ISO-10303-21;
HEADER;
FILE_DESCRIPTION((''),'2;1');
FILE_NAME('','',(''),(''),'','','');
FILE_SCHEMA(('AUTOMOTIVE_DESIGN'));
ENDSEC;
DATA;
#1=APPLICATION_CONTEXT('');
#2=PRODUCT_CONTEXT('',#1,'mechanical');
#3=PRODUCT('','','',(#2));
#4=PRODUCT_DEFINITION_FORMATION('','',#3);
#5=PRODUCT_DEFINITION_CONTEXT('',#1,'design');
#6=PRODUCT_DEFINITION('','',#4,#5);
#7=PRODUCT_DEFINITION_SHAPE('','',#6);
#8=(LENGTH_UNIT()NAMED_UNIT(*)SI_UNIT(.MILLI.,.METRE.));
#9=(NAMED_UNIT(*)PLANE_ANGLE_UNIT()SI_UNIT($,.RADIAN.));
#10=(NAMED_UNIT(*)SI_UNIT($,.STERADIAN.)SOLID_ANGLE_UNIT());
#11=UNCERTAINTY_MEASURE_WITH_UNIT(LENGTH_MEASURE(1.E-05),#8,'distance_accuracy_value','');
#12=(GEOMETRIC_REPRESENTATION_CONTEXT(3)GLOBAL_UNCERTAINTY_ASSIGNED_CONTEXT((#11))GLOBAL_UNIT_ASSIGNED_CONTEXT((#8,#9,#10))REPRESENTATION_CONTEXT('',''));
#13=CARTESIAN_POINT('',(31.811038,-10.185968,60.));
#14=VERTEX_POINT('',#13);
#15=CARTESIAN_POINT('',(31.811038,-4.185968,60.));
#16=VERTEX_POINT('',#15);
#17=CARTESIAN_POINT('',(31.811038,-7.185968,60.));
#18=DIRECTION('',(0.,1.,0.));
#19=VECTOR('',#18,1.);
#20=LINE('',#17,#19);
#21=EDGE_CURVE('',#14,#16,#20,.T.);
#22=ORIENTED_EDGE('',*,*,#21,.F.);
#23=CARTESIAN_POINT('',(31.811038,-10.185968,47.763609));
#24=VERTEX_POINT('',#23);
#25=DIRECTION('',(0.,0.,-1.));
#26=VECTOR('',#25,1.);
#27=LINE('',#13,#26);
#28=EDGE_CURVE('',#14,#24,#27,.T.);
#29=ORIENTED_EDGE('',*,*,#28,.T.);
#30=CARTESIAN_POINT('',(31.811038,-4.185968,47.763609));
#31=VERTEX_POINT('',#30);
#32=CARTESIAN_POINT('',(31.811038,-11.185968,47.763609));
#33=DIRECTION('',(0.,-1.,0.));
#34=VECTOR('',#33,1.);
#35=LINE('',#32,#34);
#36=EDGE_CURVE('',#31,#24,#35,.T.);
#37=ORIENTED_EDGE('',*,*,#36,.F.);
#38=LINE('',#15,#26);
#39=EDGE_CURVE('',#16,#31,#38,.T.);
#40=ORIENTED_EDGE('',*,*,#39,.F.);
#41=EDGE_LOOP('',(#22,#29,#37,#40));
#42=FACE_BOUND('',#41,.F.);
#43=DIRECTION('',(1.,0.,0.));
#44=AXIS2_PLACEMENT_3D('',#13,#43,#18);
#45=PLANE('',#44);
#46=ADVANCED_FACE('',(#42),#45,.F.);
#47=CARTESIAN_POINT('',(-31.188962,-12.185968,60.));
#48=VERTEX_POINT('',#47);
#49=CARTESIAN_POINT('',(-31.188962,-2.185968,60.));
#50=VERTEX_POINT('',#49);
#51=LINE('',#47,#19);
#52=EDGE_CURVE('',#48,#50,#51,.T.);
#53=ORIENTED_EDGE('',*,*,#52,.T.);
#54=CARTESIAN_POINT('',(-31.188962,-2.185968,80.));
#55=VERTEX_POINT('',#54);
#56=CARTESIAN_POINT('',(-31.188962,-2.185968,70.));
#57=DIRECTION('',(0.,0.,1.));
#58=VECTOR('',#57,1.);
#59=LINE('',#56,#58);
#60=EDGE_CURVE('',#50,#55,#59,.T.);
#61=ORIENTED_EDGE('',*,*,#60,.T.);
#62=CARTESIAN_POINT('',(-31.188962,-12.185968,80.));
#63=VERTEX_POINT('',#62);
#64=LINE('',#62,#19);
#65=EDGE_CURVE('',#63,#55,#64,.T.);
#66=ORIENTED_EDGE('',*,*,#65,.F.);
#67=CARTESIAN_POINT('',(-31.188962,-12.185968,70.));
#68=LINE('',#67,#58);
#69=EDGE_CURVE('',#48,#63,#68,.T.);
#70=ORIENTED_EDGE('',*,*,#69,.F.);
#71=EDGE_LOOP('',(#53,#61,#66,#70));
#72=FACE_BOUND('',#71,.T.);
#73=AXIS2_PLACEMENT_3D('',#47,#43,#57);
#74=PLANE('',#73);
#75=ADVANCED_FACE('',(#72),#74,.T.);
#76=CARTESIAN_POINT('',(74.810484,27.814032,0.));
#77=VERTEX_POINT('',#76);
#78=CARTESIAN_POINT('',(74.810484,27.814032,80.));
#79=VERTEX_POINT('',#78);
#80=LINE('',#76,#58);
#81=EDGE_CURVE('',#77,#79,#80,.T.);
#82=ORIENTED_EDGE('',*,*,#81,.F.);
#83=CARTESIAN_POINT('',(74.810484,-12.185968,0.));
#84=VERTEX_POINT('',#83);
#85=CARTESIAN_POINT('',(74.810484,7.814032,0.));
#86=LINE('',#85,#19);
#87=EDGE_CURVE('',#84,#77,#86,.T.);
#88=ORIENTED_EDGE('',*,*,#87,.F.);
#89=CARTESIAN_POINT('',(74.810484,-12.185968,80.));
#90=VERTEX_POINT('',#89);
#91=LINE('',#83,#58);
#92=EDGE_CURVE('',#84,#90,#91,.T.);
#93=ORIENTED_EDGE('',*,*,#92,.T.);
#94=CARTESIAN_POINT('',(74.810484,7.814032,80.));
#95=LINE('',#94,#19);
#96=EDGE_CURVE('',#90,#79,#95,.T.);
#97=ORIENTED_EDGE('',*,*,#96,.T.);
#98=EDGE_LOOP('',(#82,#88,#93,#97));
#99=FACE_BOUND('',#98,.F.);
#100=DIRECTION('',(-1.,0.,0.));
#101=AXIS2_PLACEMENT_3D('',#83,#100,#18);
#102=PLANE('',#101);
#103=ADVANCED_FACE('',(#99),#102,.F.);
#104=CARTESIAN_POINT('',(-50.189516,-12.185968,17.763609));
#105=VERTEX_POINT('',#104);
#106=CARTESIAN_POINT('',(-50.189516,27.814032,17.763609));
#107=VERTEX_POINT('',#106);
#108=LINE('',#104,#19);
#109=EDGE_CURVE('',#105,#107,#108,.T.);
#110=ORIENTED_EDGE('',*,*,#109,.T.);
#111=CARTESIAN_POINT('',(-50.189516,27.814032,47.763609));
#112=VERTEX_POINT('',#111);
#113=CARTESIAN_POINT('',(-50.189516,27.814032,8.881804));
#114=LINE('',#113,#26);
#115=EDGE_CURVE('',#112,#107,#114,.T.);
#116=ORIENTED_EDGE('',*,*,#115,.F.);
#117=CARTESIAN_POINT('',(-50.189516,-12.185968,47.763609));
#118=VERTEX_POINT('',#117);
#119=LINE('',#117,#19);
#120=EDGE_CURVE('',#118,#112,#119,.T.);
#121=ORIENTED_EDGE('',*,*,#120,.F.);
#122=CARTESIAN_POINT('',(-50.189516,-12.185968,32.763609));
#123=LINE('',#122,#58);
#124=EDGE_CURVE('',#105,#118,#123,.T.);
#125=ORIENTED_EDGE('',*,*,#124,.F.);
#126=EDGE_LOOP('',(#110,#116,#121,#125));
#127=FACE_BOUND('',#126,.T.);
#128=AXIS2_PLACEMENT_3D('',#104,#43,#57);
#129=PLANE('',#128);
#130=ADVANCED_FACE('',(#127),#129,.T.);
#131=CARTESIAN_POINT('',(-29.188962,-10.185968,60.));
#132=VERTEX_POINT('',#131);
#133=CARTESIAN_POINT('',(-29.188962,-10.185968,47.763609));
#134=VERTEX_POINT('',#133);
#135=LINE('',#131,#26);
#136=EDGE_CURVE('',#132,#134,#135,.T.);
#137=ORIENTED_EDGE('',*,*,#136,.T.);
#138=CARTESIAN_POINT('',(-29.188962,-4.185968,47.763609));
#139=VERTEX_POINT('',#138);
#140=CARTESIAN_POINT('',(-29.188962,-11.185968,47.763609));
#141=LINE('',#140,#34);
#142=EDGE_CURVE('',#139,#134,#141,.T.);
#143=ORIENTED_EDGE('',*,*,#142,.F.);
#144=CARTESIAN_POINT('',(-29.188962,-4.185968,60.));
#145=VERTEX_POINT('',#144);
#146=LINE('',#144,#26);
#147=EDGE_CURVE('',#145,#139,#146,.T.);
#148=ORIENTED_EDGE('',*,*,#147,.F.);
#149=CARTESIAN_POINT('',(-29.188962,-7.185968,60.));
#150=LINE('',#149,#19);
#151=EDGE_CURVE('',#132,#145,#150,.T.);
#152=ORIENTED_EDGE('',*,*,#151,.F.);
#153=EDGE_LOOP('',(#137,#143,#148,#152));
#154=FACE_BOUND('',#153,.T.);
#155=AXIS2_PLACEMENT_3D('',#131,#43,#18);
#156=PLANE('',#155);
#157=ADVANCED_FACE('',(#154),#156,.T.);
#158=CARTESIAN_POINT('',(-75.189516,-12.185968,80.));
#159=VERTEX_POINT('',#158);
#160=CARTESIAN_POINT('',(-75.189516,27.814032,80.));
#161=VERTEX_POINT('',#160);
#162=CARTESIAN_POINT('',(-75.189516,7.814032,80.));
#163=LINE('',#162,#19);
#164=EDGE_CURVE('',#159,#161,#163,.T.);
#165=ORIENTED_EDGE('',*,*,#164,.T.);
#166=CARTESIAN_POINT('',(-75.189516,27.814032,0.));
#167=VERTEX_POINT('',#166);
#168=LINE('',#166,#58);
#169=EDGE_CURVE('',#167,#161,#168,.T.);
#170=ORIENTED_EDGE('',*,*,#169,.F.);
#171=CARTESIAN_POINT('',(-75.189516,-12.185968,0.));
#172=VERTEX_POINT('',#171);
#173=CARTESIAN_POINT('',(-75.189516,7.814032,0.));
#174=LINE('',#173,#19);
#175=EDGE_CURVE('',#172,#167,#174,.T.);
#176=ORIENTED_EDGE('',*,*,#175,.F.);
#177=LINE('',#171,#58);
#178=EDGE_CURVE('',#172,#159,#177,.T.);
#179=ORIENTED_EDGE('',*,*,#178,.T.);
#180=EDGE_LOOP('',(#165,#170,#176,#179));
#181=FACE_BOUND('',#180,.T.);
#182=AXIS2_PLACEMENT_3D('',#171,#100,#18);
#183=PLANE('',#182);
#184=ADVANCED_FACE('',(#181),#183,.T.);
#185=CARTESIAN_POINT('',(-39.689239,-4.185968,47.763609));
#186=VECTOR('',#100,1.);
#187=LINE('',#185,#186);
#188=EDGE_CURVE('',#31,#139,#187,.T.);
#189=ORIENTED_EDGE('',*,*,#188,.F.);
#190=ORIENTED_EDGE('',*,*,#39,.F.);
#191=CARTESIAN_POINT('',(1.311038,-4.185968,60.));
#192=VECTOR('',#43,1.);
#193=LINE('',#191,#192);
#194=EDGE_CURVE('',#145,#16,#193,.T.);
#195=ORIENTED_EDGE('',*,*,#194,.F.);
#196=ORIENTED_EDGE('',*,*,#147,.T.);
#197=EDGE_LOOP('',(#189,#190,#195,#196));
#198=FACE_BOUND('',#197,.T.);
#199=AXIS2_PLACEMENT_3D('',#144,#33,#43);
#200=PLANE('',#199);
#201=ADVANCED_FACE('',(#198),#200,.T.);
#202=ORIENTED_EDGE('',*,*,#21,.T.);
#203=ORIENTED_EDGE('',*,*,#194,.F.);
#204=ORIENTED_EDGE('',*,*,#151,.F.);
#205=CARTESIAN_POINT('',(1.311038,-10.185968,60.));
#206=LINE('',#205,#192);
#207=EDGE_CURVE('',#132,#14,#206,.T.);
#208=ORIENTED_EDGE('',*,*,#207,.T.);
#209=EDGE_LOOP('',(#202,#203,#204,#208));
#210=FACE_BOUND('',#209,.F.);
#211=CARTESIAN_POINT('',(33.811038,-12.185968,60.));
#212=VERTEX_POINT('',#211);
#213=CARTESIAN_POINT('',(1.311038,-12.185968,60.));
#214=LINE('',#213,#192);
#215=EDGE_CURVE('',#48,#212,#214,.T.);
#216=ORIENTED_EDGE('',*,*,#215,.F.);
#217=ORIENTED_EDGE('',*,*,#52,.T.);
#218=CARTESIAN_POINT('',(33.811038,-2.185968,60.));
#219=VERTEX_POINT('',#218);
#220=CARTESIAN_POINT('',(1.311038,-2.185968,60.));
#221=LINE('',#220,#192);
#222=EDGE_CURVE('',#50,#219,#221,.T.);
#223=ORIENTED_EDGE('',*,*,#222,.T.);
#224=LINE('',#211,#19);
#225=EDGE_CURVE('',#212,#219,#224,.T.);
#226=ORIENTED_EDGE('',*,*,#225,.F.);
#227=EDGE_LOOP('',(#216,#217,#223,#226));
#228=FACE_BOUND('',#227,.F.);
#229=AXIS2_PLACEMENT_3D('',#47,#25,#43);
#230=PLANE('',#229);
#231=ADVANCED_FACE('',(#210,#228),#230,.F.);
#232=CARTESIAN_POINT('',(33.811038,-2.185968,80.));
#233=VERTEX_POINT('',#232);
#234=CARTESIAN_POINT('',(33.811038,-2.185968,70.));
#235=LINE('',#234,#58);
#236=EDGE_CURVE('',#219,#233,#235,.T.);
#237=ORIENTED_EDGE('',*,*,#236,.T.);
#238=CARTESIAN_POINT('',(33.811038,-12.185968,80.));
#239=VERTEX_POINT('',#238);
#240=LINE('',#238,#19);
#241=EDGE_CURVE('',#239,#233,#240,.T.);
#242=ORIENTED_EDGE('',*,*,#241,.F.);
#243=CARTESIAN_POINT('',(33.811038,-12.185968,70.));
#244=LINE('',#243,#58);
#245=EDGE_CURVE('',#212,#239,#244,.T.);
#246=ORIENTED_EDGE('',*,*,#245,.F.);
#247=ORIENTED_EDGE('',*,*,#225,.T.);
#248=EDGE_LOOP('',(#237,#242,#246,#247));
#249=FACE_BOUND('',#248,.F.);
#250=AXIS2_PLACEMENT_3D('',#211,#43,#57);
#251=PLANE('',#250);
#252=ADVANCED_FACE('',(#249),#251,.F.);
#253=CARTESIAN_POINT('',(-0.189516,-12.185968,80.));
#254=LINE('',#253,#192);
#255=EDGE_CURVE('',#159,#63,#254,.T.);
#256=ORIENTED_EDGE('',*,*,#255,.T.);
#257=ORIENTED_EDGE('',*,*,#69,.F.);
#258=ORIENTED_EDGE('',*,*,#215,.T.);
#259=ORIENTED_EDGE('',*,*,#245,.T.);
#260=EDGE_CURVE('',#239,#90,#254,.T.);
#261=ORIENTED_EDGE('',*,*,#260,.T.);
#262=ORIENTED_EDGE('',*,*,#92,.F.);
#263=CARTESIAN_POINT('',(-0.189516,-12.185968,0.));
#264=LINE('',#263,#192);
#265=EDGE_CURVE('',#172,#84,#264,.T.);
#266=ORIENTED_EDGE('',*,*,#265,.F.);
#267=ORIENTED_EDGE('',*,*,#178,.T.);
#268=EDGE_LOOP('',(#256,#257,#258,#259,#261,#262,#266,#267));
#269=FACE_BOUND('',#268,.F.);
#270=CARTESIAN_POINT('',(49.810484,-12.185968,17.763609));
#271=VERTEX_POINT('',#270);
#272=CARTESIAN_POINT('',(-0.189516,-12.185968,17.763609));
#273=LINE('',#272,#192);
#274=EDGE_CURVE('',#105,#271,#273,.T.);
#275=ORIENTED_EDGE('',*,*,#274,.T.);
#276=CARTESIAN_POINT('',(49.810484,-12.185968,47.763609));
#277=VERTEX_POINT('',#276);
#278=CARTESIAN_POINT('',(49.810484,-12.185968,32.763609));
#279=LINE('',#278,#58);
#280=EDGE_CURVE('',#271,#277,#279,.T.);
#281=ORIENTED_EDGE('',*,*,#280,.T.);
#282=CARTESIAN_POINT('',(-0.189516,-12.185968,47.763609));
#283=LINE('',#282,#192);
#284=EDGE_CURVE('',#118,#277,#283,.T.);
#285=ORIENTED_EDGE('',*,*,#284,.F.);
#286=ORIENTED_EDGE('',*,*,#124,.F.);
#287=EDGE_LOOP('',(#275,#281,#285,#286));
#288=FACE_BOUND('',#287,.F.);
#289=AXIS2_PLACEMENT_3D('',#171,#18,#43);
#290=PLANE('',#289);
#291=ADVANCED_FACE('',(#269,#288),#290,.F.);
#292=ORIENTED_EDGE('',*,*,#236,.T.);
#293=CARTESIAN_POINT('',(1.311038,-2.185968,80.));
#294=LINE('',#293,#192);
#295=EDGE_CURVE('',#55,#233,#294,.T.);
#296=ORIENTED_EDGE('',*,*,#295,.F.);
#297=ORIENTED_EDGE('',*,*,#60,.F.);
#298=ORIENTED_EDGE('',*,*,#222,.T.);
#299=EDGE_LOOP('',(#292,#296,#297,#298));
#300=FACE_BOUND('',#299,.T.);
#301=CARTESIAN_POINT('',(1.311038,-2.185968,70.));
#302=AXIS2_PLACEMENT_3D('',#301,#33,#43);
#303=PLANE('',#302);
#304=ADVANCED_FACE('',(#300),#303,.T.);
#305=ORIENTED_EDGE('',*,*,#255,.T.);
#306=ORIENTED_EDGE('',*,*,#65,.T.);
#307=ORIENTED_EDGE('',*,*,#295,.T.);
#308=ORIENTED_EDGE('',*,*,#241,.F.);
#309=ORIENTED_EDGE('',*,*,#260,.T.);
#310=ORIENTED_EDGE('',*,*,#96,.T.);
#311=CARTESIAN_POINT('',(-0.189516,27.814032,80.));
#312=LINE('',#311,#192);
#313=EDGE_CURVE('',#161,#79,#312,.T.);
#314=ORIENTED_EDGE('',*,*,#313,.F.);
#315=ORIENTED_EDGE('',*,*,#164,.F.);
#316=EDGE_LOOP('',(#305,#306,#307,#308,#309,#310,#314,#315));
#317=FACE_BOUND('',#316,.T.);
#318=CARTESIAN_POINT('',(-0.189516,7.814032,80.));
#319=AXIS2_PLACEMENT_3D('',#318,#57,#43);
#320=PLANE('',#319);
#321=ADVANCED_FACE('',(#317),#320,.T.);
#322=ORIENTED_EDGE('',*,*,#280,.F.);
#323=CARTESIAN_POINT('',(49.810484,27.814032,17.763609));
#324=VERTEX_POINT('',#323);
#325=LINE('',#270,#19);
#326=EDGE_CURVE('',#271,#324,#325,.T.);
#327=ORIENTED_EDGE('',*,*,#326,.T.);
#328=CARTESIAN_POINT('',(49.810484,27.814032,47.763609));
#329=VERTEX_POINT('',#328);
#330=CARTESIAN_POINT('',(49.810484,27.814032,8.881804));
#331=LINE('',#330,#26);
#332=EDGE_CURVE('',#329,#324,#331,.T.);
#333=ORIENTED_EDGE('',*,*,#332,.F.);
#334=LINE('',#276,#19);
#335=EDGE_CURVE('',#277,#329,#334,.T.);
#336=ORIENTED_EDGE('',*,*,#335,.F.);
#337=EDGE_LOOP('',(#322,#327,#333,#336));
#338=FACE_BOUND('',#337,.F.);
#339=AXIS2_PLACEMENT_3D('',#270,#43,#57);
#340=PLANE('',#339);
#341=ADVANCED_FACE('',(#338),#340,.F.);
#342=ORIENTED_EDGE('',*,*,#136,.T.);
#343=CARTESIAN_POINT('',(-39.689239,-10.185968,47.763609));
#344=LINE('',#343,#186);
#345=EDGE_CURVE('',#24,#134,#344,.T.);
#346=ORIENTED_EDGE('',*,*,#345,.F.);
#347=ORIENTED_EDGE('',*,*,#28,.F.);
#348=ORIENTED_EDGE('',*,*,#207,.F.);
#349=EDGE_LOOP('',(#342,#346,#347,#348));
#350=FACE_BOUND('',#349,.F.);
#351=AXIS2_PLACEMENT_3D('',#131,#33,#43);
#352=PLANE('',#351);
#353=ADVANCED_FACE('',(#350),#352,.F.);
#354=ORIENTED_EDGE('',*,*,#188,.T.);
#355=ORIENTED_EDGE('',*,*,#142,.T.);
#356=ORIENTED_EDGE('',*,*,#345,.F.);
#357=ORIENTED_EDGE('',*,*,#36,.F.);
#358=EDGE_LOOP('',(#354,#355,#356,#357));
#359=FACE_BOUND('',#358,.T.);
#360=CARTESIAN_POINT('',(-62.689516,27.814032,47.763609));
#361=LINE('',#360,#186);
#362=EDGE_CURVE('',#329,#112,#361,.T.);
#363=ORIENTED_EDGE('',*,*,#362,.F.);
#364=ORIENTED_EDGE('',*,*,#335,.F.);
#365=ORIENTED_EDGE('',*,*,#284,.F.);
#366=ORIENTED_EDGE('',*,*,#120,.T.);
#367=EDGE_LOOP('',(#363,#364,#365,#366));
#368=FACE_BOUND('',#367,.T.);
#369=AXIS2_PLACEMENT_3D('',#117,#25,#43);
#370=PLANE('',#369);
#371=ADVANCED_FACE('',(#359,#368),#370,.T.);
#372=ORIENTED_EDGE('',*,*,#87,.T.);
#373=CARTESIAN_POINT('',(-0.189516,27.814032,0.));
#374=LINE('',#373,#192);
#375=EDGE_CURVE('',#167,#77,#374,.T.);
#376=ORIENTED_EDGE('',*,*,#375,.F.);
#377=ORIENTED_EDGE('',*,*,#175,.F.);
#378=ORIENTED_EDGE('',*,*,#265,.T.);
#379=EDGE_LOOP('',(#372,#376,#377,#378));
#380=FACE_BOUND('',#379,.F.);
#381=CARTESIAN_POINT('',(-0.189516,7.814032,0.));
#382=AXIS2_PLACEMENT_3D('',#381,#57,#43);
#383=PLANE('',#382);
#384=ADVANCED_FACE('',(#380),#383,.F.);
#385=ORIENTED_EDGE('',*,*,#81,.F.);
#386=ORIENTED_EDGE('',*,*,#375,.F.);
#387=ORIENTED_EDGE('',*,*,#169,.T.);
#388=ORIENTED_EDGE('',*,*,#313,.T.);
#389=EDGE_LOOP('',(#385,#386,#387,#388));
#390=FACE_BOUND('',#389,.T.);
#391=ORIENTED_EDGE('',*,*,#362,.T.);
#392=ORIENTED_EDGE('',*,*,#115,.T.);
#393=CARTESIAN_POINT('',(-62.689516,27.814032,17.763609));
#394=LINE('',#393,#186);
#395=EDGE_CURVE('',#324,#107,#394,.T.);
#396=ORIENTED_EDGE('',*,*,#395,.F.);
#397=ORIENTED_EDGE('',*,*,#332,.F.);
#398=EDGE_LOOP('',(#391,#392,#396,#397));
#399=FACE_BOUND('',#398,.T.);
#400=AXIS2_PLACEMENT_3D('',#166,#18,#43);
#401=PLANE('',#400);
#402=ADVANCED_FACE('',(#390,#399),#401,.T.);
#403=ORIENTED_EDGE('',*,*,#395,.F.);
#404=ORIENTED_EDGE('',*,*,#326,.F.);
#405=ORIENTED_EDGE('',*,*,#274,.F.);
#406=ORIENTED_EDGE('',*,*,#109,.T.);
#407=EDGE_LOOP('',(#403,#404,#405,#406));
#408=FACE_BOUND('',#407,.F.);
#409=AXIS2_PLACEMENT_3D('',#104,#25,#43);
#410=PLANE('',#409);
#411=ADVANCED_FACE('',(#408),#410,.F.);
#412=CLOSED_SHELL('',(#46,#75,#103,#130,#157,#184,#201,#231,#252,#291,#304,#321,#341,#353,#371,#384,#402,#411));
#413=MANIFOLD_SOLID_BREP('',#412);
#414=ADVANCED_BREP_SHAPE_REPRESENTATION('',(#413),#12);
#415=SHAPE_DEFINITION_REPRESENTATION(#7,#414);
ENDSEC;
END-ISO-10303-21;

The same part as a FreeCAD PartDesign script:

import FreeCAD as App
import Part
import Sketcher
Q = App.Units.Quantity

doc = App.newDocument("Part")
body = doc.addObject("PartDesign::Body", "Body")

sketch1 = doc.addObject("Sketcher::SketchObject", "Sketch")
body.addObject(sketch1)
sketch1.AttachmentSupport = (doc.XY_Plane, [""])
sketch1.MapMode = "FlatFace"
sketch1.addGeometry(Part.LineSegment(App.Vector(-75.189516, 27.814032, 0), App.Vector(-75.189516, -12.185968, 0)), False)
sketch1.addGeometry(Part.LineSegment(App.Vector(-75.189516, -12.185968, 0), App.Vector(74.810484, -12.185968, 0)), False)
sketch1.addGeometry(Part.LineSegment(App.Vector(74.810484, -12.185968, 0), App.Vector(74.810484, 27.814032, 0)), False)
sketch1.addGeometry(Part.LineSegment(App.Vector(74.810484, 27.814032, 0), App.Vector(-75.189516, 27.814032, 0)), False)
sketch1.addConstraint(Sketcher.Constraint("Coincident", 0, 2, 1, 1))
sketch1.addConstraint(Sketcher.Constraint("Coincident", 1, 2, 2, 1))
sketch1.addConstraint(Sketcher.Constraint("Coincident", 2, 2, 3, 1))
sketch1.addConstraint(Sketcher.Constraint("Coincident", 3, 2, 0, 1))
sketch1.addConstraint(Sketcher.Constraint("Vertical", 0))
sketch1.addConstraint(Sketcher.Constraint("Horizontal", 1))
sketch1.addConstraint(Sketcher.Constraint("Vertical", 2))
sketch1.addConstraint(Sketcher.Constraint("Horizontal", 3))
sketch1.addConstraint(Sketcher.Constraint("DistanceX", 1, 1, 1, 2, Q("150 mm")))
sketch1.addConstraint(Sketcher.Constraint("DistanceY", 0, 2, 0, 1, Q("40 mm")))
sketch1.addConstraint(Sketcher.Constraint("DistanceY", 0, 2, -1, 1, Q("12.185968 mm")))
sketch1.addConstraint(Sketcher.Constraint("DistanceX", 0, 2, -1, 1, Q("75.189516 mm")))
pad1 = doc.addObject("PartDesign::Pad", "Pad")
body.addObject(pad1)
pad1.Profile = sketch1
pad1.Length = 80

sketch2 = doc.addObject("Sketcher::SketchObject", "Sketch001")
body.addObject(sketch2)
sketch2.AttachmentSupport = (doc.XZ_Plane, [""])
sketch2.MapMode = "FlatFace"
sketch2.AttachmentOffset = App.Placement(App.Vector(0, 0, 12.185968), App.Rotation())
sketch2.addGeometry(Part.LineSegment(App.Vector(-31.188962, 80, 0), App.Vector(-31.188962, 60, 0)), False)
sketch2.addGeometry(Part.LineSegment(App.Vector(-31.188962, 60, 0), App.Vector(33.811038, 60, 0)), False)
sketch2.addGeometry(Part.LineSegment(App.Vector(33.811038, 60, 0), App.Vector(33.811038, 80, 0)), False)
sketch2.addGeometry(Part.LineSegment(App.Vector(33.811038, 80, 0), App.Vector(-31.188962, 80, 0)), False)
sketch2.addConstraint(Sketcher.Constraint("Coincident", 0, 2, 1, 1))
sketch2.addConstraint(Sketcher.Constraint("Coincident", 1, 2, 2, 1))
sketch2.addConstraint(Sketcher.Constraint("Coincident", 2, 2, 3, 1))
sketch2.addConstraint(Sketcher.Constraint("Coincident", 3, 2, 0, 1))
sketch2.addConstraint(Sketcher.Constraint("Vertical", 0))
sketch2.addConstraint(Sketcher.Constraint("Horizontal", 1))
sketch2.addConstraint(Sketcher.Constraint("Vertical", 2))
sketch2.addConstraint(Sketcher.Constraint("Horizontal", 3))
sketch2.addConstraint(Sketcher.Constraint("DistanceX", 1, 1, 1, 2, Q("65 mm")))
sketch2.addConstraint(Sketcher.Constraint("DistanceY", 0, 2, 0, 1, Q("20 mm")))
sketch2.addConstraint(Sketcher.Constraint("DistanceY", -1, 1, 0, 2, Q("60 mm")))
sketch2.addConstraint(Sketcher.Constraint("DistanceX", 0, 2, -1, 1, Q("31.188962 mm")))
pocket1 = doc.addObject("PartDesign::Pocket", "Pocket")
body.addObject(pocket1)
pocket1.Profile = sketch2
pocket1.Length = 10

sketch3 = doc.addObject("Sketcher::SketchObject", "Sketch002")
body.addObject(sketch3)
sketch3.AttachmentSupport = (doc.XZ_Plane, [""])
sketch3.MapMode = "FlatFace"
sketch3.AttachmentOffset = App.Placement(App.Vector(0, 0, 12.185968), App.Rotation())
sketch3.addGeometry(Part.LineSegment(App.Vector(-50.189516, 47.763609, 0), App.Vector(-50.189516, 17.763609, 0)), False)
sketch3.addGeometry(Part.LineSegment(App.Vector(-50.189516, 17.763609, 0), App.Vector(49.810484, 17.763609, 0)), False)
sketch3.addGeometry(Part.LineSegment(App.Vector(49.810484, 17.763609, 0), App.Vector(49.810484, 47.763609, 0)), False)
sketch3.addGeometry(Part.LineSegment(App.Vector(49.810484, 47.763609, 0), App.Vector(-50.189516, 47.763609, 0)), False)
sketch3.addConstraint(Sketcher.Constraint("Coincident", 0, 2, 1, 1))
sketch3.addConstraint(Sketcher.Constraint("Coincident", 1, 2, 2, 1))
sketch3.addConstraint(Sketcher.Constraint("Coincident", 2, 2, 3, 1))
sketch3.addConstraint(Sketcher.Constraint("Coincident", 3, 2, 0, 1))
sketch3.addConstraint(Sketcher.Constraint("Vertical", 0))
sketch3.addConstraint(Sketcher.Constraint("Horizontal", 1))
sketch3.addConstraint(Sketcher.Constraint("Vertical", 2))
sketch3.addConstraint(Sketcher.Constraint("Horizontal", 3))
sketch3.addConstraint(Sketcher.Constraint("DistanceX", 1, 1, 1, 2, Q("100 mm")))
sketch3.addConstraint(Sketcher.Constraint("DistanceY", 0, 2, 0, 1, Q("30 mm")))
sketch3.addConstraint(Sketcher.Constraint("DistanceY", -1, 1, 0, 2, Q("17.763609 mm")))
sketch3.addConstraint(Sketcher.Constraint("DistanceX", 0, 2, -1, 1, Q("50.189516 mm")))
pocket2 = doc.addObject("PartDesign::Pocket", "Pocket001")
body.addObject(pocket2)
pocket2.Profile = sketch3
pocket2.Length = 87.2

sketch4 = doc.addObject("Sketcher::SketchObject", "Sketch003")
body.addObject(sketch4)
sketch4.AttachmentSupport = (doc.XY_Plane, [""])
sketch4.MapMode = "FlatFace"
sketch4.AttachmentOffset = App.Placement(App.Vector(0, 0, 60), App.Rotation())
sketch4.addGeometry(Part.LineSegment(App.Vector(-29.188962, -4.185968, 0), App.Vector(-29.188962, -10.185968, 0)), False)
sketch4.addGeometry(Part.LineSegment(App.Vector(-29.188962, -10.185968, 0), App.Vector(31.811038, -10.185968, 0)), False)
sketch4.addGeometry(Part.LineSegment(App.Vector(31.811038, -10.185968, 0), App.Vector(31.811038, -4.185968, 0)), False)
sketch4.addGeometry(Part.LineSegment(App.Vector(31.811038, -4.185968, 0), App.Vector(-29.188962, -4.185968, 0)), False)
sketch4.addConstraint(Sketcher.Constraint("Coincident", 0, 2, 1, 1))
sketch4.addConstraint(Sketcher.Constraint("Coincident", 1, 2, 2, 1))
sketch4.addConstraint(Sketcher.Constraint("Coincident", 2, 2, 3, 1))
sketch4.addConstraint(Sketcher.Constraint("Coincident", 3, 2, 0, 1))
sketch4.addConstraint(Sketcher.Constraint("Vertical", 0))
sketch4.addConstraint(Sketcher.Constraint("Horizontal", 1))
sketch4.addConstraint(Sketcher.Constraint("Vertical", 2))
sketch4.addConstraint(Sketcher.Constraint("Horizontal", 3))
sketch4.addConstraint(Sketcher.Constraint("DistanceX", 1, 1, 1, 2, Q("61 mm")))
sketch4.addConstraint(Sketcher.Constraint("DistanceY", 0, 2, 0, 1, Q("6 mm")))
sketch4.addConstraint(Sketcher.Constraint("DistanceX", 0, 2, -1, 1, Q("29.188962 mm")))
sketch4.addConstraint(Sketcher.Constraint("DistanceY", 0, 2, -1, 1, Q("10.185968 mm")))
pocket3 = doc.addObject("PartDesign::Pocket", "Pocket002")
body.addObject(pocket3)
pocket3.Profile = sketch4
pocket3.Length = 25

doc.recompute()
